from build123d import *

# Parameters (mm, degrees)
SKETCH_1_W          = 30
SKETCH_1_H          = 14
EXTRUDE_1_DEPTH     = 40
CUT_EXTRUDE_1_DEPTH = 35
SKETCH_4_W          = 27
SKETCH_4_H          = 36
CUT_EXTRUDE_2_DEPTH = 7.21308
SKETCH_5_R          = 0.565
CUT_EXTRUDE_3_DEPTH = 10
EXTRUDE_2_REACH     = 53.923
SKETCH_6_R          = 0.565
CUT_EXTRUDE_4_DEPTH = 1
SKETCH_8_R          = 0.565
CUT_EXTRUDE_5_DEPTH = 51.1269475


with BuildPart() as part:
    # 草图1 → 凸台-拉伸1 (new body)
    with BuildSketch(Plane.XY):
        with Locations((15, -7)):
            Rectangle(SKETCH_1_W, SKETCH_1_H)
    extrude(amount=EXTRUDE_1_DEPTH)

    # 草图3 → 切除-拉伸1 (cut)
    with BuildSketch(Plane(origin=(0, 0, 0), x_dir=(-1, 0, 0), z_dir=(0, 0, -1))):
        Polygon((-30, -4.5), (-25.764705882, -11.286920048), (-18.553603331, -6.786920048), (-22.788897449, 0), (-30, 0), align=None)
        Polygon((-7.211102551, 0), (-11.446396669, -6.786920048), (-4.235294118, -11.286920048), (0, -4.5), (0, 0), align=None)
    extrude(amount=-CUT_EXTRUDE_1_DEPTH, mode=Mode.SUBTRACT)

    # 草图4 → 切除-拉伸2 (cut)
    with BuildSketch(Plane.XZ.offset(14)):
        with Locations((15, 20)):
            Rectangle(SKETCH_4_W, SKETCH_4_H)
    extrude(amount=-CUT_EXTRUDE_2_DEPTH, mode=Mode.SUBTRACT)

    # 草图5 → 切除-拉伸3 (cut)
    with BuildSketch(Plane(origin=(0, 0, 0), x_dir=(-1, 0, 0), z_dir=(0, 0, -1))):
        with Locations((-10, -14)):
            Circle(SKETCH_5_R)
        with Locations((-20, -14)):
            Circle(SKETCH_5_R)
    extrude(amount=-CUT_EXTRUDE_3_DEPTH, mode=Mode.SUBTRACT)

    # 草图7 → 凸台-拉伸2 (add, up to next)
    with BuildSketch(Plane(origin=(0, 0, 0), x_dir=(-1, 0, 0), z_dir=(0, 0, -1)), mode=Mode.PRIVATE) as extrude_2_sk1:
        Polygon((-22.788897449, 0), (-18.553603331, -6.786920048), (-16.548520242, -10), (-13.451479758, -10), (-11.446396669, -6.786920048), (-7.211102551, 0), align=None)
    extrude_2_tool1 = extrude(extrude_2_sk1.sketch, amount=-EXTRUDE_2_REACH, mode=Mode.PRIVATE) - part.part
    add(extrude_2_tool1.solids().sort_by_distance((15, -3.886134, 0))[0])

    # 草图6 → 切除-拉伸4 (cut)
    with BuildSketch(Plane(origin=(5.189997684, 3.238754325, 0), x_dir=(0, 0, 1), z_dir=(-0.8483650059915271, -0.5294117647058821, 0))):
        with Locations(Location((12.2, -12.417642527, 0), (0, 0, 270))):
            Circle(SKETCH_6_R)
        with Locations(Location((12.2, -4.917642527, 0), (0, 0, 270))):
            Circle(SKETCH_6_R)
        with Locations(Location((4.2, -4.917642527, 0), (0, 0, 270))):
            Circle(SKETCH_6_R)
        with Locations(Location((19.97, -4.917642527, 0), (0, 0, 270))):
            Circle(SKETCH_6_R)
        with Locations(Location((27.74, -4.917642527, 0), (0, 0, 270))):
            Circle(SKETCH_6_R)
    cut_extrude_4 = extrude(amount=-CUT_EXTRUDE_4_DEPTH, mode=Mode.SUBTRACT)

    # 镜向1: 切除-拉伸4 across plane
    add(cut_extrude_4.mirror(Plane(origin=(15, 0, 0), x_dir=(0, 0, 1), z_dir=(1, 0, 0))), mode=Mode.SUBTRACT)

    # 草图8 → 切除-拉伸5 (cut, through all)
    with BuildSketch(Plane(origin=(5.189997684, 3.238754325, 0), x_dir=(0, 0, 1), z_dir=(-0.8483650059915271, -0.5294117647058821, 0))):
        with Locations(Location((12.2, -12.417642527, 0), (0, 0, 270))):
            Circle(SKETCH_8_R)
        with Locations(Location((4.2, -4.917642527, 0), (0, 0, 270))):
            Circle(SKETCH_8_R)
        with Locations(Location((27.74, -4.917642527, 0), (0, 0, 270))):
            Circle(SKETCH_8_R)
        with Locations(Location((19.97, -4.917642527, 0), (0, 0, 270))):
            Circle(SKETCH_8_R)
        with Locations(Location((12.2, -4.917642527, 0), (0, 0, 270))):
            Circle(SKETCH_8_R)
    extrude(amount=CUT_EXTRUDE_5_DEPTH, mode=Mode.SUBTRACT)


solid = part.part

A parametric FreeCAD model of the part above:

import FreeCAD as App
import Part
import Sketcher
from FreeCAD import Vector

doc = App.newDocument("Part")
body = doc.addObject("PartDesign::Body", "Body")

# Sketch on XY plane
sketch1 = body.newObject("Sketcher::SketchObject", "Sketch")
sketch1.AttachmentSupport = (doc.getObject("XY_Plane"), [""])
sketch1.MapMode = "FlatFace"
sketch1.addGeometry(Part.LineSegment(Vector(0, 0, 0), Vector(0, -14, 0)), False)
sketch1.addGeometry(Part.LineSegment(Vector(0, -14, 0), Vector(30, -14, 0)), False)
sketch1.addGeometry(Part.LineSegment(Vector(30, -14, 0), Vector(30, 0, 0)), False)
sketch1.addGeometry(Part.LineSegment(Vector(30, 0, 0), Vector(0, 0, 0)), False)
sketch1.addConstraint(Sketcher.Constraint("Coincident", 0, 2, 1, 1))
sketch1.addConstraint(Sketcher.Constraint("Coincident", 1, 2, 2, 1))
sketch1.addConstraint(Sketcher.Constraint("Coincident", 2, 2, 3, 1))
sketch1.addConstraint(Sketcher.Constraint("Coincident", 3, 2, 0, 1))
sketch1.addConstraint(Sketcher.Constraint("Vertical", 0))
sketch1.addConstraint(Sketcher.Constraint("Horizontal", 1))
sketch1.addConstraint(Sketcher.Constraint("Vertical", 2))
sketch1.addConstraint(Sketcher.Constraint("Horizontal", 3))
sketch1.addConstraint(Sketcher.Constraint("Coincident", 3, 2, -1, 1))
sketch1.addConstraint(Sketcher.Constraint("DistanceX", 1, 1, 1, 2, 30.0))
sketch1.addConstraint(Sketcher.Constraint("DistanceY", 0, 2, 0, 1, 14.0))
pad1 = body.newObject("PartDesign::Pad", "Pad")
pad1.Profile = sketch1
pad1.Length = 40

# Sketch on XY plane
sketch2 = body.newObject("Sketcher::SketchObject", "Sketch001")
sketch2.AttachmentSupport = (doc.getObject("XY_Plane"), [""])
sketch2.MapMode = "FlatFace"
sketch2.addGeometry(Part.LineSegment(Vector(30, -4.5, 0), Vector(25.8, -11.3, 0)), False)
sketch2.addGeometry(Part.LineSegment(Vector(25.8, -11.3, 0), Vector(18.6, -6.8, 0)), False)
sketch2.addGeometry(Part.LineSegment(Vector(18.6, -6.8, 0), Vector(22.8, 0, 0)), False)
sketch2.addGeometry(Part.LineSegment(Vector(22.8, 0, 0), Vector(30, 0, 0)), False)
sketch2.addGeometry(Part.LineSegment(Vector(30, 0, 0), Vector(30, -4.5, 0)), False)
sketch2.addGeometry(Part.LineSegment(Vector(7.2, 0, 0), Vector(11.4, -6.8, 0)), False)
sketch2.addGeometry(Part.LineSegment(Vector(11.4, -6.8, 0), Vector(4.2, -11.3, 0)), False)
sketch2.addGeometry(Part.LineSegment(Vector(4.2, -11.3, 0), Vector(0, -4.5, 0)), False)
sketch2.addGeometry(Part.LineSegment(Vector(0, -4.5, 0), Vector(0, 0, 0)), False)
sketch2.addGeometry(Part.LineSegment(Vector(0, 0, 0), Vector(7.2, 0, 0)), False)
sketch2.addConstraint(Sketcher.Constraint("Coincident", 0, 2, 1, 1))
sketch2.addConstraint(Sketcher.Constraint("Coincident", 1, 2, 2, 1))
sketch2.addConstraint(Sketcher.Constraint("Coincident", 2, 2, 3, 1))
sketch2.addConstraint(Sketcher.Constraint("Coincident", 3, 2, 4, 1))
sketch2.addConstraint(Sketcher.Constraint("Coincident", 4, 2, 0, 1))
sketch2.addConstraint(Sketcher.Constraint("Coincident", 5, 2, 6, 1))
sketch2.addConstraint(Sketcher.Constraint("Coincident", 6, 2, 7, 1))
sketch2.addConstraint(Sketcher.Constraint("Coincident", 7, 2, 8, 1))
sketch2.addConstraint(Sketcher.Constraint("Coincident", 8, 2, 9, 1))
sketch2.addConstraint(Sketcher.Constraint("Coincident", 9, 2, 5, 1))
sketch2.addConstraint(Sketcher.Constraint("Horizontal", 3))
sketch2.addConstraint(Sketcher.Constraint("Vertical", 4))
sketch2.addConstraint(Sketcher.Constraint("Vertical", 8))
sketch2.addConstraint(Sketcher.Constraint("Horizontal", 9))
sketch2.addConstraint(Sketcher.Constraint("Coincident", 8, 2, -1, 1))
sketch2.addConstraint(Sketcher.Constraint("PointOnObject", 2, 2, -1))
sketch2.addConstraint(Sketcher.Constraint("Perpendicular", 0, 1))
sketch2.addConstraint(Sketcher.Constraint("Perpendicular", 1, 2))
sketch2.addConstraint(Sketcher.Constraint("Perpendicular", 5, 6))
sketch2.addConstraint(Sketcher.Constraint("Perpendicular", 6, 7))
sketch2.addConstraint(Sketcher.Constraint("Horizontal", 1, 2, 5, 2))
sketch2.addConstraint(Sketcher.Constraint("Horizontal", 0, 2, 6, 2))
sketch2.addConstraint(Sketcher.Constraint("Horizontal", 4, 2, 7, 2))
sketch2.addConstraint(Sketcher.Constraint("Equal", 3, 9))
sketch2.addConstraint(Sketcher.Constraint("Equal", 0, 2))
sketch2.addConstraint(Sketcher.Constraint("Distance", 0, 8.0))
sketch2.addConstraint(Sketcher.Constraint("DistanceY", 4, 2, 4, 1, 4.5))
sketch2.addConstraint(Sketcher.Constraint("DistanceX", -1, 1, 3, 2, 30.0))
sketch2.addConstraint(Sketcher.Constraint("Distance", 1, 8.5))
pocket1 = body.newObject("PartDesign::Pocket", "Pocket")
pocket1.Profile = sketch2
pocket1.Length = 35
pocket1.Reversed = True

# Sketch on XZ plane
sketch3 = body.newObject("Sketcher::SketchObject", "Sketch002")
sketch3.AttachmentSupport = (doc.getObject("XZ_Plane"), [""])
sketch3.MapMode = "FlatFace"
sketch3.AttachmentOffset = App.Placement(Vector(0, 0, 14), App.Rotation())
sketch3.addGeometry(Part.LineSegment(Vector(2, 38, 0), Vector(2, 2, 0)), False)
sketch3.addGeometry(Part.LineSegment(Vector(2, 2, 0), Vector(28, 2, 0)), False)
sketch3.addGeometry(Part.LineSegment(Vector(28, 2, 0), Vector(28, 38, 0)), False)
sketch3.addGeometry(Part.LineSegment(Vector(28, 38, 0), Vector(2, 38, 0)), False)
sketch3.addConstraint(Sketcher.Constraint("Coincident", 0, 2, 1, 1))
sketch3.addConstraint(Sketcher.Constraint("Coincident", 1, 2, 2, 1))
sketch3.addConstraint(Sketcher.Constraint("Coincident", 2, 2, 3, 1))
sketch3.addConstraint(Sketcher.Constraint("Coincident", 3, 2, 0, 1))
sketch3.addConstraint(Sketcher.Constraint("Vertical", 0))
sketch3.addConstraint(Sketcher.Constraint("Horizontal", 1))
sketch3.addConstraint(Sketcher.Constraint("Vertical", 2))
sketch3.addConstraint(Sketcher.Constraint("Horizontal", 3))
sketch3.addConstraint(Sketcher.Constraint("DistanceX", 1, 1, 1, 2, 27.0))
sketch3.addConstraint(Sketcher.Constraint("DistanceY", 0, 2, 0, 1, 36.0))
sketch3.addConstraint(Sketcher.Constraint("DistanceY", -1, 1, 0, 2, 2.0))
sketch3.addConstraint(Sketcher.Constraint("DistanceX", -1, 1, 0, 2, 1.5))
pocket2 = body.newObject("PartDesign::Pocket", "Pocket001")
pocket2.Profile = sketch3
pocket2.Length = 7.21308

# Sketch on XY plane
sketch4 = body.newObject("Sketcher::SketchObject", "Sketch003")
sketch4.AttachmentSupport = (doc.getObject("XY_Plane"), [""])
sketch4.MapMode = "FlatFace"
sketch4.addGeometry(Part.Circle(Vector(10, -14, 0), Vector(0, 0, 1), 0.6), False)
sketch4.addGeometry(Part.Circle(Vector(20, -14, 0), Vector(0, 0, 1), 0.6), False)
sketch4.addConstraint(Sketcher.Constraint("Equal", 0, 1))
sketch4.addConstraint(Sketcher.Constraint("Horizontal", 0, 3, 1, 3))
sketch4.addConstraint(Sketcher.Constraint("Diameter", 0, 1.13))
sketch4.addConstraint(Sketcher.Constraint("DistanceX", -1, 1, 0, 3, 10.0))
sketch4.addConstraint(Sketcher.Constraint("DistanceY", 0, 3, -1, 1, 14.0))
sketch4.addConstraint(Sketcher.Constraint("DistanceX", -1, 1, 1, 3, 20.0))
pocket3 = body.newObject("PartDesign::Pocket", "Pocket002")
pocket3.Profile = sketch4
pocket3.Length = 10
pocket3.Reversed = True

# Sketch on XY plane
sketch5 = body.newObject("Sketcher::SketchObject", "Sketch004")
sketch5.AttachmentSupport = (doc.getObject("XY_Plane"), [""])
sketch5.MapMode = "FlatFace"
sketch5.addGeometry(Part.LineSegment(Vector(22.8, 0, 0), Vector(18.6, -6.8, 0)), False)
sketch5.addGeometry(Part.LineSegment(Vector(18.6, -6.8, 0), Vector(16.5, -10, 0)), False)
sketch5.addGeometry(Part.LineSegment(Vector(16.5, -10, 0), Vector(13.5, -10, 0)), False)
sketch5.addGeometry(Part.LineSegment(Vector(13.5, -10, 0), Vector(11.4, -6.8, 0)), False)
sketch5.addGeometry(Part.LineSegment(Vector(11.4, -6.8, 0), Vector(7.2, 0, 0)), False)
sketch5.addGeometry(Part.LineSegment(Vector(7.2, 0, 0), Vector(22.8, 0, 0)), False)
sketch5.addConstraint(Sketcher.Constraint("Coincident", 0, 2, 1, 1))
sketch5.addConstraint(Sketcher.Constraint("Coincident", 1, 2, 2, 1))
sketch5.addConstraint(Sketcher.Constraint("Coincident", 2, 2, 3, 1))
sketch5.addConstraint(Sketcher.Constraint("Coincident", 3, 2, 4, 1))
sketch5.addConstraint(Sketcher.Constraint("Coincident", 4, 2, 5, 1))
sketch5.addConstraint(Sketcher.Constraint("Coincident", 5, 2, 0, 1))
sketch5.addConstraint(Sketcher.Constraint("Horizontal", 2))
sketch5.addConstraint(Sketcher.Constraint("Horizontal", 5))
sketch5.addConstraint(Sketcher.Constraint("PointOnObject", 4, 2, -1))
sketch5.addConstraint(Sketcher.Constraint("Parallel", 0, 1))
sketch5.addConstraint(Sketcher.Constraint("Parallel", 3, 4))
sketch5.addConstraint(Sketcher.Constraint("Horizontal", 0, 2, 3, 2))
sketch5.addConstraint(Sketcher.Constraint("Equal", 1, 3))
sketch5.addConstraint(Sketcher.Constraint("Distance", 0, 8.0))
sketch5.addConstraint(Sketcher.Constraint("DistanceY", 1, 2, -1, 1, 10.0))
sketch5.addConstraint(Sketcher.Constraint("DistanceX", 2, 2, 2, 1, 3.09704))
sketch5.addConstraint(Sketcher.Constraint("DistanceX", 4, 2, 0, 2, 11.342501))
sketch5.addConstraint(Sketcher.Constraint("DistanceX", -1, 1, 1, 2, 16.54852))
pad2 = body.newObject("PartDesign::Pad", "Pad001")
pad2.Profile = sketch5
pad2.Type = "UpToFirst"

# Sketch on an angled plane
sketch6 = body.newObject("Sketcher::SketchObject", "Sketch005")
sketch6.Placement = App.Placement(Vector(5.189998, 3.238754, 0), App.Rotation(Vector(0, 0, 1), Vector(-0.529411765, 0.848365006, 0), Vector(-0.848365006, -0.529411765, 0), "ZXY"))
sketch6.addGeometry(Part.Circle(Vector(12.2, -12.4, 0), Vector(0, 0, 1), 0.6), False)
sketch6.addGeometry(Part.Circle(Vector(12.2, -4.9, 0), Vector(0, 0, 1), 0.6), False)
sketch6.addGeometry(Part.Circle(Vector(4.2, -4.9, 0), Vector(0, 0, 1), 0.6), False)
sketch6.addGeometry(Part.Circle(Vector(20, -4.9, 0), Vector(0, 0, 1), 0.6), False)
sketch6.addGeometry(Part.Circle(Vector(27.7, -4.9, 0), Vector(0, 0, 1), 0.6), False)
sketch6.addConstraint(Sketcher.Constraint("Equal", 0, 1))
sketch6.addConstraint(Sketcher.Constraint("Equal", 1, 2))
sketch6.addConstraint(Sketcher.Constraint("Equal", 2, 3))
sketch6.addConstraint(Sketcher.Constraint("Equal", 3, 4))
sketch6.addConstraint(Sketcher.Constraint("Horizontal", 1, 3, 2, 3))
sketch6.addConstraint(Sketcher.Constraint("Horizontal", 2, 3, 3, 3))
sketch6.addConstraint(Sketcher.Constraint("Horizontal", 3, 3, 4, 3))
sketch6.addConstraint(Sketcher.Constraint("Vertical", 0, 3, 1, 3))
sketch6.addConstraint(Sketcher.Constraint("Diameter", 0, 1.13))
sketch6.addConstraint(Sketcher.Constraint("DistanceX", 2, 3, 1, 3, 8.0))
sketch6.addConstraint(Sketcher.Constraint("DistanceX", -1, 1, 0, 3, 12.2))
sketch6.addConstraint(Sketcher.Constraint("DistanceY", 0, 3, 1, 3, 7.5))
sketch6.addConstraint(Sketcher.Constraint("DistanceX", -1, 1, 3, 3, 19.97))
sketch6.addConstraint(Sketcher.Constraint("DistanceX", -1, 1, 4, 3, 27.74))
sketch6.addConstraint(Sketcher.Constraint("DistanceY", 0, 3, -1, 1, 12.417643))
pocket4 = body.newObject("PartDesign::Pocket", "Pocket003")
pocket4.Profile = sketch6
pocket4.Length = 1
doc.recompute()

datumplane = body.newObject("PartDesign::Plane", "DatumPlane")
datumplane.AttachmentSupport = (doc.getObject("YZ_Plane"), [""])
datumplane.MapMode = "FlatFace"
datumplane.AttachmentOffset = App.Placement(Vector(0, 0, 15), App.Rotation())
mirrored = body.newObject("PartDesign::Mirrored", "Mirrored")
mirrored.Originals = [pocket4]
mirrored.MirrorPlane = (datumplane, [""])
body.Tip = mirrored

# Sketch on an angled plane
sketch7 = body.newObject("Sketcher::SketchObject", "Sketch006")
sketch7.Placement = App.Placement(Vector(5.189998, 3.238754, 0), App.Rotation(Vector(0, 0, 1), Vector(-0.529411765, 0.848365006, 0), Vector(-0.848365006, -0.529411765, 0), "ZXY"))
sketch7.addGeometry(Part.Circle(Vector(12.2, -12.4, 0), Vector(0, 0, 1), 0.6), False)
sketch7.addGeometry(Part.Circle(Vector(4.2, -4.9, 0), Vector(0, 0, 1), 0.6), False)
sketch7.addGeometry(Part.Circle(Vector(27.7, -4.9, 0), Vector(0, 0, 1), 0.6), False)
sketch7.addGeometry(Part.Circle(Vector(20, -4.9, 0), Vector(0, 0, 1), 0.6), False)
sketch7.addGeometry(Part.Circle(Vector(12.2, -4.9, 0), Vector(0, 0, 1), 0.6), False)
sketch7.addConstraint(Sketcher.Constraint("Equal", 0, 1))
sketch7.addConstraint(Sketcher.Constraint("Equal", 1, 2))
sketch7.addConstraint(Sketcher.Constraint("Equal", 2, 3))
sketch7.addConstraint(Sketcher.Constraint("Equal", 3, 4))
sketch7.addConstraint(Sketcher.Constraint("Horizontal", 1, 3, 2, 3))
sketch7.addConstraint(Sketcher.Constraint("Horizontal", 2, 3, 3, 3))
sketch7.addConstraint(Sketcher.Constraint("Horizontal", 3, 3, 4, 3))
sketch7.addConstraint(Sketcher.Constraint("Vertical", 0, 3, 4, 3))
sketch7.addConstraint(Sketcher.Constraint("Diameter", 0, 1.13))
sketch7.addConstraint(Sketcher.Constraint("DistanceX", 1, 3, 0, 3, 8.0))
sketch7.addConstraint(Sketcher.Constraint("DistanceX", -1, 1, 0, 3, 12.2))
sketch7.addConstraint(Sketcher.Constraint("DistanceY", 0, 3, 1, 3, 7.5))
sketch7.addConstraint(Sketcher.Constraint("DistanceX", -1, 1, 2, 3, 27.74))
sketch7.addConstraint(Sketcher.Constraint("DistanceX", -1, 1, 3, 3, 19.97))
sketch7.addConstraint(Sketcher.Constraint("DistanceY", 0, 3, -1, 1, 12.417643))
pocket5 = body.newObject("PartDesign::Pocket", "Pocket004")
pocket5.Profile = sketch7
pocket5.Type = "ThroughAll"
pocket5.Reversed = True

doc.recompute()
